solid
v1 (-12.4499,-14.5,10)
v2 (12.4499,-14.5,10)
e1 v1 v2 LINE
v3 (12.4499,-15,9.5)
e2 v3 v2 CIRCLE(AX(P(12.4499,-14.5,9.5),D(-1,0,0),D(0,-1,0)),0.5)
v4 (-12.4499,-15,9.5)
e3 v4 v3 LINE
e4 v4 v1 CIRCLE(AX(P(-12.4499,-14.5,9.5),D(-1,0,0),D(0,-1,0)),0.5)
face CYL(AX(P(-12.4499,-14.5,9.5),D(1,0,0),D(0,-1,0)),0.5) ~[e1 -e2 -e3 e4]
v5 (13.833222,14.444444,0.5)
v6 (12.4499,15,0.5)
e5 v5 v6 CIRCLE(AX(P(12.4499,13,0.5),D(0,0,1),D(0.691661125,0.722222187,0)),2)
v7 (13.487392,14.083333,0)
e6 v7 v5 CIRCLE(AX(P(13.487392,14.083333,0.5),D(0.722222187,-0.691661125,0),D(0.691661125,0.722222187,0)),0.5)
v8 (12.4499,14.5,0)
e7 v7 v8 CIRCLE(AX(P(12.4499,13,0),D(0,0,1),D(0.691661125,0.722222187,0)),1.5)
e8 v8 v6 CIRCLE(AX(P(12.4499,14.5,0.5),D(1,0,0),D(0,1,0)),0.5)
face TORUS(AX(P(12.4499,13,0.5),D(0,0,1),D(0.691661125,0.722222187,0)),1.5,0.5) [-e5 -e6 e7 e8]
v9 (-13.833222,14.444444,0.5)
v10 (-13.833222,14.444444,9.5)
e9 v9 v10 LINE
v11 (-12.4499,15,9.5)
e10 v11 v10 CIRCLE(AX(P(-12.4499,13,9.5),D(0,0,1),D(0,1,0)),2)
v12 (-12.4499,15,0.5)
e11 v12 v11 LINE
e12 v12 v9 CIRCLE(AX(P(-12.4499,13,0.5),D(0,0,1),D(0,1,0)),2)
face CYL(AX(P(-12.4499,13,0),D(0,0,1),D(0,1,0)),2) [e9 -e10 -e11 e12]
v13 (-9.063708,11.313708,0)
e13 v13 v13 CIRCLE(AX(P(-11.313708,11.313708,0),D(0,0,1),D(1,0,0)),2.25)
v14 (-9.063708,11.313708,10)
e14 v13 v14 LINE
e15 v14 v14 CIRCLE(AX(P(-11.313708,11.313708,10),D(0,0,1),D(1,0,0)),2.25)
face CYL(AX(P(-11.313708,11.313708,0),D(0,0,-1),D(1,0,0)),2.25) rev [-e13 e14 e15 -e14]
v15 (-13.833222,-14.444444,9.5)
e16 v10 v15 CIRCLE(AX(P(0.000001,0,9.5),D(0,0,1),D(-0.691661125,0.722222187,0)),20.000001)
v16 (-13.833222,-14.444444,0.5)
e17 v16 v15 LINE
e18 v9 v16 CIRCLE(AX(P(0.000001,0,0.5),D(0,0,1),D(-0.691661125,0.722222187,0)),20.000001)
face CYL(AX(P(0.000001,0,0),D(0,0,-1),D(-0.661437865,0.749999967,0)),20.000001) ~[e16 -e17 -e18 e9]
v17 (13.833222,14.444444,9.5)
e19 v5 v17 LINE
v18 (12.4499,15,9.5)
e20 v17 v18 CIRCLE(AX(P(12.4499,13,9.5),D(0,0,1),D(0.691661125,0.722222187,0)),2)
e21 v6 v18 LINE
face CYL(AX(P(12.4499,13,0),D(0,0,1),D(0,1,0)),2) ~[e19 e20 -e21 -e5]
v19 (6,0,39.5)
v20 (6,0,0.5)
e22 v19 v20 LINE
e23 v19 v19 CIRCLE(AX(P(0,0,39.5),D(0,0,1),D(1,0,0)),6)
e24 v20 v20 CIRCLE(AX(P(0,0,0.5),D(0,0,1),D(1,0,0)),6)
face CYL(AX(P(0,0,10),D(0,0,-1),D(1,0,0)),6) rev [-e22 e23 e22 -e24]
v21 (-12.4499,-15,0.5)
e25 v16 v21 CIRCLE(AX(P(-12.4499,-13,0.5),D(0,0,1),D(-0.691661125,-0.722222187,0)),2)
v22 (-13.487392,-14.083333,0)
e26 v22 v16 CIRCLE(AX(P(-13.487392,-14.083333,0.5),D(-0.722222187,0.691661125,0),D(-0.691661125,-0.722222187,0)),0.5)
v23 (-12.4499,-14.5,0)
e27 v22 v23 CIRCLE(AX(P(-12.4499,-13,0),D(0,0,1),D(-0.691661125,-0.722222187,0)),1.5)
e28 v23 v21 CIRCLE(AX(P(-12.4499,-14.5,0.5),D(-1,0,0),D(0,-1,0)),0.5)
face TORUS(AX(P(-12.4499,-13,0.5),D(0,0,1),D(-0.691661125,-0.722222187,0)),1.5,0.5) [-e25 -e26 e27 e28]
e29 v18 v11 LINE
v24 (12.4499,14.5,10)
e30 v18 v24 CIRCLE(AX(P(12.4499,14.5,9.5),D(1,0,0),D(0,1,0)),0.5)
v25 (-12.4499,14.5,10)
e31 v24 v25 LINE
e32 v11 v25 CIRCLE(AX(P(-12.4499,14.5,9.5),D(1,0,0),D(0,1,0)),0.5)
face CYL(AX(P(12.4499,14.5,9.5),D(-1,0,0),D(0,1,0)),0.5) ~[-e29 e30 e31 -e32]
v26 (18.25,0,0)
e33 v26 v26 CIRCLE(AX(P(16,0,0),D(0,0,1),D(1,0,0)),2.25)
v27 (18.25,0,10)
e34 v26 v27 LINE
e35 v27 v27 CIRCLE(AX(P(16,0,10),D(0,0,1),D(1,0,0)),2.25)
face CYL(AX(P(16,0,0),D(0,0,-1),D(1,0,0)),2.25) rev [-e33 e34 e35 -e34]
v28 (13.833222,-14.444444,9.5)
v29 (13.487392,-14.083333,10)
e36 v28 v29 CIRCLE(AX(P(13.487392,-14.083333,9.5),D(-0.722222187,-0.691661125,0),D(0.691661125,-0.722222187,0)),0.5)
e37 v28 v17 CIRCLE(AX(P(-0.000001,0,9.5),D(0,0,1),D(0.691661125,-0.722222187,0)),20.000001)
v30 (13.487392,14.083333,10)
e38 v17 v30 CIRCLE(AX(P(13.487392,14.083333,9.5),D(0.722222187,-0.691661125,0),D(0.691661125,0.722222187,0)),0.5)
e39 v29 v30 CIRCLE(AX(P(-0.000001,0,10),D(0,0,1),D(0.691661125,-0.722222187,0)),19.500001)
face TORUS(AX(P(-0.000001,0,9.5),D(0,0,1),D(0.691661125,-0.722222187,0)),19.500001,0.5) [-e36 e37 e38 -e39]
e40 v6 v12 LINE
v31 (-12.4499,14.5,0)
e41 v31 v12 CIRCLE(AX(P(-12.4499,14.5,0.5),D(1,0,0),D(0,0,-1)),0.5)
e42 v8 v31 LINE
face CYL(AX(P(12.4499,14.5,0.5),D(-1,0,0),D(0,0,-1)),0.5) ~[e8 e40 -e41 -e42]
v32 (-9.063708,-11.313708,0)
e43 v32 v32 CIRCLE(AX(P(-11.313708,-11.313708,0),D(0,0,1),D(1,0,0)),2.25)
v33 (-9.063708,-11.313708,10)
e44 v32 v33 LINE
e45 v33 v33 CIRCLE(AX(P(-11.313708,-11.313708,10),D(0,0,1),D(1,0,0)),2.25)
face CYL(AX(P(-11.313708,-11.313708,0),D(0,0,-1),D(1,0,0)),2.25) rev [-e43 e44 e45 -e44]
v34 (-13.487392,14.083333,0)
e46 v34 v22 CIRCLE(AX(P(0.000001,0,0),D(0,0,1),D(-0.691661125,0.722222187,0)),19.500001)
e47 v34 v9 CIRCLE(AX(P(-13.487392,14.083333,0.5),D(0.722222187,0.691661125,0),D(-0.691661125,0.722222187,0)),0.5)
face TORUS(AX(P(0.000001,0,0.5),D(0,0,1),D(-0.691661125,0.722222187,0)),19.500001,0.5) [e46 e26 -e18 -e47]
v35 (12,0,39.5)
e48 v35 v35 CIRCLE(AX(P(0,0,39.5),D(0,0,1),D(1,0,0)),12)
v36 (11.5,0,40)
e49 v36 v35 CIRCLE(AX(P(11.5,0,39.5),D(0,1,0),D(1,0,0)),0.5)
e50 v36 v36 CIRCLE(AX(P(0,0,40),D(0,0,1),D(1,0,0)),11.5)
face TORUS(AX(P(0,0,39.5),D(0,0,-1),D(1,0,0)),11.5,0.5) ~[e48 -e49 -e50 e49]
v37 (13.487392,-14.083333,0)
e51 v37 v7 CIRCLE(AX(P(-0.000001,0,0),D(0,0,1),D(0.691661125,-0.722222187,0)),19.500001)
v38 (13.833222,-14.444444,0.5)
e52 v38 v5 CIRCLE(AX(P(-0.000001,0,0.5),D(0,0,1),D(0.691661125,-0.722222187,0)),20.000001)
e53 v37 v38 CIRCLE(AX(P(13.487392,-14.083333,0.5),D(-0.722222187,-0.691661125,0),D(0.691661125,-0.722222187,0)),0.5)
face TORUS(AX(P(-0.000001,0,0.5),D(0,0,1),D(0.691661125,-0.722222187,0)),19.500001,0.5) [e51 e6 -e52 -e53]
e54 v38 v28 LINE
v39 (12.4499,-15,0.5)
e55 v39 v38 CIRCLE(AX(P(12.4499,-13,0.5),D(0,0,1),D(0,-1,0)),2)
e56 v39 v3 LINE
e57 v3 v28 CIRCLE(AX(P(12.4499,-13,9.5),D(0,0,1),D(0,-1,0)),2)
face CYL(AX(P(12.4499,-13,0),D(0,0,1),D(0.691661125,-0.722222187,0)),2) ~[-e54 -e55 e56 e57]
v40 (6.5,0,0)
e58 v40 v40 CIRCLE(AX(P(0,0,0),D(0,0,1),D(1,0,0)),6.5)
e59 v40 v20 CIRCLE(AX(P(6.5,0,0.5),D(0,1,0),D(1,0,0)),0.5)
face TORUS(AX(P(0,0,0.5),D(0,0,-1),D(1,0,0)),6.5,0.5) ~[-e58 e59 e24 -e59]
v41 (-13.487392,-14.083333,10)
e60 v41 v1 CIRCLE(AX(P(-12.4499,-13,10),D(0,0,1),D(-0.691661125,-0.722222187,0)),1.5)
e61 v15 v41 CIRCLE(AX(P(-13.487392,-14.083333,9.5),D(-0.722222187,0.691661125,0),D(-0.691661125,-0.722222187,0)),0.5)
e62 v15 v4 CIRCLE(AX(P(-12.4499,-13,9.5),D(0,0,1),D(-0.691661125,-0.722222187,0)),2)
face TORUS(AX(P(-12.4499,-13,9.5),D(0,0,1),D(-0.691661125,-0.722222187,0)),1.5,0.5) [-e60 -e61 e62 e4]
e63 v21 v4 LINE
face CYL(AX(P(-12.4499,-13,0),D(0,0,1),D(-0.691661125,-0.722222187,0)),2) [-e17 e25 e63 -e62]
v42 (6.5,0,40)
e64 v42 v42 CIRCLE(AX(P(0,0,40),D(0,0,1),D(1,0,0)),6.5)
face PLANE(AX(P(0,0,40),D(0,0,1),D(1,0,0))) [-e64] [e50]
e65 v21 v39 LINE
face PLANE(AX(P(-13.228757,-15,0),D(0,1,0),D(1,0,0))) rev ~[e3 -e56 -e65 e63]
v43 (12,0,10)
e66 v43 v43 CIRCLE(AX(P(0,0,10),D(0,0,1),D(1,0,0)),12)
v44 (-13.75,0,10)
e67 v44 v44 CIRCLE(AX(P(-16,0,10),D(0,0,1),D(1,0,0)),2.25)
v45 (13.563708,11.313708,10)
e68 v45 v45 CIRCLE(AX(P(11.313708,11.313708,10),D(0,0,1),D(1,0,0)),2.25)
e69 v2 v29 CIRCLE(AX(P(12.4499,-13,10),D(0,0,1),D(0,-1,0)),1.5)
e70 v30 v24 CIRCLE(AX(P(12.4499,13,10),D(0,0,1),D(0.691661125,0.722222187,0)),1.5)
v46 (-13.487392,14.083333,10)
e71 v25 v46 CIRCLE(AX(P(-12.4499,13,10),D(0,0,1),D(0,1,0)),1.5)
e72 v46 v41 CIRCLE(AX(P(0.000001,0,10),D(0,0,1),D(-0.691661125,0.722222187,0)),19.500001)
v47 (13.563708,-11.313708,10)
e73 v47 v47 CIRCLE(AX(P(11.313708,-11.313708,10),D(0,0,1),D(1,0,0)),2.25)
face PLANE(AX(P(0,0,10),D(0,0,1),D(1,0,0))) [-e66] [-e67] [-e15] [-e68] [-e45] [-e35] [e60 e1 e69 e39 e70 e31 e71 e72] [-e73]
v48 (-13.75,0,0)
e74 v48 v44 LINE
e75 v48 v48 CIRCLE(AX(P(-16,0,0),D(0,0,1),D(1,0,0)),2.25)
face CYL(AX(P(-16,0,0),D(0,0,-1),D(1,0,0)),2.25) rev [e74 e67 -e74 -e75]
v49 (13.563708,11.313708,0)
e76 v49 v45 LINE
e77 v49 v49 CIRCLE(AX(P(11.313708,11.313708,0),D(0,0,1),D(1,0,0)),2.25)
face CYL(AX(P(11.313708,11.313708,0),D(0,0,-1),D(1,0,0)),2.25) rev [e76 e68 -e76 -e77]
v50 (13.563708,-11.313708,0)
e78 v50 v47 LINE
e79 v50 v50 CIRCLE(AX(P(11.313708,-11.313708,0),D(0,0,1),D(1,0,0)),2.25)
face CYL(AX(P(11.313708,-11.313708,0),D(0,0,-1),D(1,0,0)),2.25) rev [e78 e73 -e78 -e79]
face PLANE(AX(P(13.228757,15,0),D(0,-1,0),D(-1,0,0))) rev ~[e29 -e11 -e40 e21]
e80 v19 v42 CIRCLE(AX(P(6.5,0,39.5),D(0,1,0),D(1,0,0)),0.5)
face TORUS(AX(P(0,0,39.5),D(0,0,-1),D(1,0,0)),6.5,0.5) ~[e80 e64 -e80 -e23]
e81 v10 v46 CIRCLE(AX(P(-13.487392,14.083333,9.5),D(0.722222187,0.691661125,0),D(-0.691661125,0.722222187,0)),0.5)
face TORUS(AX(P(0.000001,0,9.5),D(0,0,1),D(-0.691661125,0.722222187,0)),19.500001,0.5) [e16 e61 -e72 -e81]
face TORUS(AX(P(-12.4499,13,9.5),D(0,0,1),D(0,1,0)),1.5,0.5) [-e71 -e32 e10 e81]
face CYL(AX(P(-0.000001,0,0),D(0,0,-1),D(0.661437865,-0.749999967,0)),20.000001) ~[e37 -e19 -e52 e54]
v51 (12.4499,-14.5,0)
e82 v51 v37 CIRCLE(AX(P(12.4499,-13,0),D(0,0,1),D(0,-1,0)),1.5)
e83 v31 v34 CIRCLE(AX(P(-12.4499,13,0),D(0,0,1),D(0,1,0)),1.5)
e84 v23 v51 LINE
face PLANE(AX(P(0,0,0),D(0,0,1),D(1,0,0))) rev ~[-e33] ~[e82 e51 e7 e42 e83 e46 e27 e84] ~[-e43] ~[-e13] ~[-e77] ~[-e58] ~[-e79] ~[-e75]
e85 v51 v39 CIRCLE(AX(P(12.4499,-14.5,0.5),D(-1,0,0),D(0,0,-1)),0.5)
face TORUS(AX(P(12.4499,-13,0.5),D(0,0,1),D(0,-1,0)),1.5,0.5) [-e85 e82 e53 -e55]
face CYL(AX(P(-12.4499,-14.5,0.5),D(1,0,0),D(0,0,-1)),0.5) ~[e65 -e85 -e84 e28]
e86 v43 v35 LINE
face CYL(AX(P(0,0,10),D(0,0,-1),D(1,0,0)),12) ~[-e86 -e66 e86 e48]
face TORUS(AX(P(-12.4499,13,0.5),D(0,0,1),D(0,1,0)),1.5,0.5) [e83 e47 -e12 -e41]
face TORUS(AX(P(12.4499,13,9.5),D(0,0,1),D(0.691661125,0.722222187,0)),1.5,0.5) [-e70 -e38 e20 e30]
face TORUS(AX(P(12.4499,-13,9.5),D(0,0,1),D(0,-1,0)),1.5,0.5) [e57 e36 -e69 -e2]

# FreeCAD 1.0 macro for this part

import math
import FreeCAD as App
import Part
import Sketcher

V = App.Vector
Q = App.Units.Quantity


def edges_at(feature, points):
    """Names of the edges that pass closest to the given points."""
    edges = feature.Shape.Edges
    near = lambda p: min(range(len(edges)), key=lambda i: edges[i].distToShape(Part.Vertex(*p))[0])
    return sorted({f"Edge{near(p) + 1}" for p in points})

doc = App.newDocument("Part")
body = doc.addObject("PartDesign::Body", "Body")

# Sketch on XY plane
sketch1 = doc.addObject("Sketcher::SketchObject", "Sketch")
body.addObject(sketch1)
sketch1.AttachmentSupport = (doc.XY_Plane, [""])
sketch1.MapMode = "FlatFace"
sketch1.addGeometry(Part.LineSegment(V(-13.2, -15, 0), V(13.2, -15, 0)), False)
sketch1.addGeometry(Part.ArcOfCircle(Part.Circle(V(0, 0, 0), V(0, 0, 1), 20), math.radians(-49), math.radians(49)), False)
sketch1.addGeometry(Part.LineSegment(V(13.2, 15, 0), V(-13.2, 15, 0)), False)
sketch1.addGeometry(Part.ArcOfCircle(Part.Circle(V(0, 0, 0), V(0, 0, 1), 20), math.radians(131), math.radians(229)), False)
sketch1.addGeometry(Part.Circle(V(-11.3, -11.3, 0), V(0, 0, 1), 2.2), False)
sketch1.addGeometry(Part.Circle(V(11.3, -11.3, 0), V(0, 0, 1), 2.2), False)
sketch1.addGeometry(Part.Circle(V(-16, 0, 0), V(0, 0, 1), 2.2), False)
sketch1.addGeometry(Part.Circle(V(-11.3, 11.3, 0), V(0, 0, 1), 2.2), False)
sketch1.addGeometry(Part.Circle(V(0, 0, 0), V(0, 0, 1), 6), False)
sketch1.addGeometry(Part.Circle(V(16, 0, 0), V(0, 0, 1), 2.2), False)
sketch1.addGeometry(Part.Circle(V(11.3, 11.3, 0), V(0, 0, 1), 2.2), False)
sketch1.addConstraint(Sketcher.Constraint("Coincident", 0, 2, 1, 1))
sketch1.addConstraint(Sketcher.Constraint("Coincident", 1, 2, 2, 1))
sketch1.addConstraint(Sketcher.Constraint("Coincident", 2, 2, 3, 1))
sketch1.addConstraint(Sketcher.Constraint("Coincident", 3, 2, 0, 1))
sketch1.addConstraint(Sketcher.Constraint("Horizontal", 0))
sketch1.addConstraint(Sketcher.Constraint("Horizontal", 2))
sketch1.addConstraint(Sketcher.Constraint("Coincident", 1, 3, -1, 1))
sketch1.addConstraint(Sketcher.Constraint("Coincident", 3, 3, -1, 1))
sketch1.addConstraint(Sketcher.Constraint("Coincident", 8, 3, -1, 1))
sketch1.addConstraint(Sketcher.Constraint("Equal", 1, 3))
sketch1.addConstraint(Sketcher.Constraint("Equal", 4, 5))
sketch1.addConstraint(Sketcher.Constraint("Equal", 5, 6))
sketch1.addConstraint(Sketcher.Constraint("Equal", 6, 7))
sketch1.addConstraint(Sketcher.Constraint("Equal", 7, 9))
sketch1.addConstraint(Sketcher.Constraint("Equal", 9, 10))
sketch1.addConstraint(Sketcher.Constraint("Symmetric", 5, 3, 7, 3, -1, 1))
sketch1.addConstraint(Sketcher.Constraint("Symmetric", 6, 3, 9, 3, -1, 1))
sketch1.addConstraint(Sketcher.Constraint("Symmetric", 4, 3, 10, 3, -1, 1))
sketch1.addConstraint(Sketcher.Constraint("Symmetric", 4, 3, 5, 3, -2))
sketch1.addConstraint(Sketcher.Constraint("PointOnObject", 6, 3, -1))
sketch1.addConstraint(Sketcher.Constraint("Vertical", 0, 2, 1, 2))
sketch1.addConstraint(Sketcher.Constraint("Diameter", 8, Q("12 mm")))
sketch1.addConstraint(Sketcher.Constraint("Radius", 1, Q("20.000001 mm")))
sketch1.addConstraint(Sketcher.Constraint("Diameter", 4, Q("4.5 mm")))
sketch1.addConstraint(Sketcher.Constraint("DistanceX", 6, 3, -1, 1, Q("16 mm")))
sketch1.addConstraint(Sketcher.Constraint("DistanceY", 0, 2, -1, 1, Q("15 mm")))
sketch1.addConstraint(Sketcher.Constraint("DistanceX", 4, 3, 3, 3, Q("11.313709 mm")))
sketch1.addConstraint(Sketcher.Constraint("DistanceY", 0, 2, 5, 3, Q("3.686292 mm")))
pad1 = doc.addObject("PartDesign::Pad", "Pad")
body.addObject(pad1)
pad1.Profile = sketch1
pad1.Length = 10

# Sketch on XY plane
sketch2 = doc.addObject("Sketcher::SketchObject", "Sketch001")
body.addObject(sketch2)
sketch2.AttachmentSupport = (doc.XY_Plane, [""])
sketch2.MapMode = "FlatFace"
sketch2.AttachmentOffset = App.Placement(V(0, 0, 10), App.Rotation())
sketch2.addGeometry(Part.Circle(V(0, 0, 0), V(0, 0, 1), 12), False)
sketch2.addGeometry(Part.Circle(V(0, 0, 0), V(0, 0, 1), 6), False)
sketch2.addConstraint(Sketcher.Constraint("Coincident", 0, 3, -1, 1))
sketch2.addConstraint(Sketcher.Constraint("Coincident", 1, 3, -1, 1))
sketch2.addConstraint(Sketcher.Constraint("Diameter", 0, Q("24 mm")))
sketch2.addConstraint(Sketcher.Constraint("Diameter", 1, Q("12 mm")))
pad2 = doc.addObject("PartDesign::Pad", "Pad001")
body.addObject(pad2)
pad2.Profile = sketch2
pad2.Length = 30
doc.recompute()

fillet = doc.addObject("PartDesign::Fillet", "Fillet")
body.addObject(fillet)
fillet.Base = (pad2, edges_at(pad2, [
    (-13.229, -15, 5),
    (13.229, -15, 5),
    (13.229, 15, 5),
    (-13.229, 15, 5),
]))
fillet.Radius = 2
doc.recompute()

fillet2 = doc.addObject("PartDesign::Fillet", "Fillet001")
body.addObject(fillet2)
fillet2.Base = (fillet, edges_at(fillet, [
    (-12, 0, 40),
    (20, 0, 10),
    (20, 0, 0),
    (-6, 0, 40),
    (-6, 0, 0),
]))
fillet2.Radius = 0.5

doc.recompute()
